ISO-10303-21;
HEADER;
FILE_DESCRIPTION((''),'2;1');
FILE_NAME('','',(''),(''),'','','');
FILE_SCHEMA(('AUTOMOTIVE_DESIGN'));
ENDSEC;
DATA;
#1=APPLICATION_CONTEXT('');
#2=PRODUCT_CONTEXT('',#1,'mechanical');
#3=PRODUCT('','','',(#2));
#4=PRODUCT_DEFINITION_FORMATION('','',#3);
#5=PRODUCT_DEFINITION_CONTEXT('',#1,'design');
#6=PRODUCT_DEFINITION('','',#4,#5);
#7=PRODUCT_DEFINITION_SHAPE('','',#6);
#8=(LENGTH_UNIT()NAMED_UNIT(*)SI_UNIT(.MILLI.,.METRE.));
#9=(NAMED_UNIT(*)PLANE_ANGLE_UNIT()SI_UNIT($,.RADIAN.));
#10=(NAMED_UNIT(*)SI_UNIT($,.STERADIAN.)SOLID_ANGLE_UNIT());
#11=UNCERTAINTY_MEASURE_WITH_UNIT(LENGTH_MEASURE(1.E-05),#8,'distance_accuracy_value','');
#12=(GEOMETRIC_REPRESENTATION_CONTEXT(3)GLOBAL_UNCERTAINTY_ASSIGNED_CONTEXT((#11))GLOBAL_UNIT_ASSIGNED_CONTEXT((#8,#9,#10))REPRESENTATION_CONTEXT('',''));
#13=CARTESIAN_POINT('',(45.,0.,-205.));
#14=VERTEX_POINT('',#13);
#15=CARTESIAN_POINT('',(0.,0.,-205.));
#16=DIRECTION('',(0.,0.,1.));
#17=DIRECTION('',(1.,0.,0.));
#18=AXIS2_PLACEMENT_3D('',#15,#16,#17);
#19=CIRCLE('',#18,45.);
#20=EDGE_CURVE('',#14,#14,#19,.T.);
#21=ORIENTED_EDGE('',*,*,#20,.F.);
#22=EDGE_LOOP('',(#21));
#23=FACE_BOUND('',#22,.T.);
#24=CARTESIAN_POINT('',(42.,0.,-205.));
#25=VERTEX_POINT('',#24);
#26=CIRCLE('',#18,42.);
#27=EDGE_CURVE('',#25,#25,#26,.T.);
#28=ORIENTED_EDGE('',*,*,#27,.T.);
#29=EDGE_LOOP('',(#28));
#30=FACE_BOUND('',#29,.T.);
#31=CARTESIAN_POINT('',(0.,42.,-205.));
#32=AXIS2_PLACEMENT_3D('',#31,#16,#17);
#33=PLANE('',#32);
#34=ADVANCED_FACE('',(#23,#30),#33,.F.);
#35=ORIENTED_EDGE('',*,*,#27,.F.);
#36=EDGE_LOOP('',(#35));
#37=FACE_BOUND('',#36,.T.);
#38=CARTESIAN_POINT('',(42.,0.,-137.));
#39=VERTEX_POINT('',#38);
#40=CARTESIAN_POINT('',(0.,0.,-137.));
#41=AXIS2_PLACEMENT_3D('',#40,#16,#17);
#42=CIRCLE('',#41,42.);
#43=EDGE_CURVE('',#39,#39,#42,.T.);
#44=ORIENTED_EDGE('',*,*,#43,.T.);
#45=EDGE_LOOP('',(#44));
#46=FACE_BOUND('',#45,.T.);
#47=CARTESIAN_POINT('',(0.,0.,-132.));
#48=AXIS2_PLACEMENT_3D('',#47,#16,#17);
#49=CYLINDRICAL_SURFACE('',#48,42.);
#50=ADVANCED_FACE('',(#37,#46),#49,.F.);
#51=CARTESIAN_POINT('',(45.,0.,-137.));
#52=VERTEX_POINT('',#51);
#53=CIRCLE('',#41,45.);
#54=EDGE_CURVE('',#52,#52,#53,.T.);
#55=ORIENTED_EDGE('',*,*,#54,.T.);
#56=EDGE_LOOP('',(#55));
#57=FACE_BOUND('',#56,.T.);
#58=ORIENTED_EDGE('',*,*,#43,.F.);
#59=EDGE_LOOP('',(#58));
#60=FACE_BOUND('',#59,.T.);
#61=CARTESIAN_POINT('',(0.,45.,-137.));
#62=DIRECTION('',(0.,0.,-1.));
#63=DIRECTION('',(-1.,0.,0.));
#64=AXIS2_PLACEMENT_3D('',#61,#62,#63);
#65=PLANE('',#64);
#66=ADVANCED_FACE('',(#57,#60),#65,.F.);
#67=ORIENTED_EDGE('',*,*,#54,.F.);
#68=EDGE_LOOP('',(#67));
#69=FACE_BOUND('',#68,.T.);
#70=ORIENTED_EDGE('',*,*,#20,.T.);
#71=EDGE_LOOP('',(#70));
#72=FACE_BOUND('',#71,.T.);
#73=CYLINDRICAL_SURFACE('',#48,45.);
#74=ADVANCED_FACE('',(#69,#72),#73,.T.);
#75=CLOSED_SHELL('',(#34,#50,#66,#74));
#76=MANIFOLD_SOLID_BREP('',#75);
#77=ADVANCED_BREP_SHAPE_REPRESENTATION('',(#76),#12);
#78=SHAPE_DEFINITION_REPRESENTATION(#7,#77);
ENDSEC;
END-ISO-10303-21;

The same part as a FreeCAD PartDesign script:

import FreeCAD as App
import Part
import Sketcher

V = App.Vector
Q = App.Units.Quantity


def add_polygon(sketch, points):
    """Adds a closed chain of lines whose ends are joined by coincident constraints."""
    first, n = sketch.GeometryCount, len(points)
    for a, b in zip(points, points[1:] + points[:1]):
        sketch.addGeometry(Part.LineSegment(App.Vector(*a, 0), App.Vector(*b, 0)), False)
    for i in range(n):
        sketch.addConstraint(Sketcher.Constraint("Coincident", first + i, 2, first + (i + 1) % n, 1))

doc = App.newDocument("Part")
params = doc.addObject("Spreadsheet::Sheet", "Params")
for row, (alias, value) in enumerate([
    ("sketch1_width", "3 mm"),
    ("sketch1_height", "68 mm"),
    ("revolution_angle", "360 deg"),
], start=1):
    params.set(f"A{row}", alias)
    params.set(f"B{row}", "=" + value)
    params.setAlias(f"B{row}", alias)

body = doc.addObject("PartDesign::Body", "Body")

# Sketch on YZ plane
sketch1 = doc.addObject("Sketcher::SketchObject", "Sketch")
body.addObject(sketch1)
sketch1.AttachmentSupport = (doc.YZ_Plane, [""])
sketch1.MapMode = "FlatFace"
add_polygon(sketch1, [(45, -137), (42, -137), (42, -205), (45, -205)])  # lines 0-3
sketch1.addConstraint(Sketcher.Constraint("Horizontal", 0))
sketch1.addConstraint(Sketcher.Constraint("Vertical", 1))
sketch1.addConstraint(Sketcher.Constraint("Horizontal", 2))
sketch1.addConstraint(Sketcher.Constraint("Vertical", 3))
sketch1.addConstraint(Sketcher.Constraint("DistanceX", 0, 2, 0, 1, Q("3 mm")))
sketch1.addConstraint(Sketcher.Constraint("DistanceY", 1, 2, 1, 1, Q("68 mm")))
sketch1.addConstraint(Sketcher.Constraint("DistanceX", -1, 1, 0, 2, Q("42 mm")))
sketch1.addConstraint(Sketcher.Constraint("DistanceY", 0, 2, -1, 1, Q("137 mm")))
sketch1.setExpression("Constraints[8]", "Params.sketch1_width")
sketch1.setExpression("Constraints[9]", "Params.sketch1_height")
revolution = doc.addObject("PartDesign::Revolution", "Revolution")
body.addObject(revolution)
revolution.Profile = sketch1
revolution.ReferenceAxis = (sketch1, ["V_Axis"])
revolution.setExpression("Angle", "Params.revolution_angle")

doc.recompute()
